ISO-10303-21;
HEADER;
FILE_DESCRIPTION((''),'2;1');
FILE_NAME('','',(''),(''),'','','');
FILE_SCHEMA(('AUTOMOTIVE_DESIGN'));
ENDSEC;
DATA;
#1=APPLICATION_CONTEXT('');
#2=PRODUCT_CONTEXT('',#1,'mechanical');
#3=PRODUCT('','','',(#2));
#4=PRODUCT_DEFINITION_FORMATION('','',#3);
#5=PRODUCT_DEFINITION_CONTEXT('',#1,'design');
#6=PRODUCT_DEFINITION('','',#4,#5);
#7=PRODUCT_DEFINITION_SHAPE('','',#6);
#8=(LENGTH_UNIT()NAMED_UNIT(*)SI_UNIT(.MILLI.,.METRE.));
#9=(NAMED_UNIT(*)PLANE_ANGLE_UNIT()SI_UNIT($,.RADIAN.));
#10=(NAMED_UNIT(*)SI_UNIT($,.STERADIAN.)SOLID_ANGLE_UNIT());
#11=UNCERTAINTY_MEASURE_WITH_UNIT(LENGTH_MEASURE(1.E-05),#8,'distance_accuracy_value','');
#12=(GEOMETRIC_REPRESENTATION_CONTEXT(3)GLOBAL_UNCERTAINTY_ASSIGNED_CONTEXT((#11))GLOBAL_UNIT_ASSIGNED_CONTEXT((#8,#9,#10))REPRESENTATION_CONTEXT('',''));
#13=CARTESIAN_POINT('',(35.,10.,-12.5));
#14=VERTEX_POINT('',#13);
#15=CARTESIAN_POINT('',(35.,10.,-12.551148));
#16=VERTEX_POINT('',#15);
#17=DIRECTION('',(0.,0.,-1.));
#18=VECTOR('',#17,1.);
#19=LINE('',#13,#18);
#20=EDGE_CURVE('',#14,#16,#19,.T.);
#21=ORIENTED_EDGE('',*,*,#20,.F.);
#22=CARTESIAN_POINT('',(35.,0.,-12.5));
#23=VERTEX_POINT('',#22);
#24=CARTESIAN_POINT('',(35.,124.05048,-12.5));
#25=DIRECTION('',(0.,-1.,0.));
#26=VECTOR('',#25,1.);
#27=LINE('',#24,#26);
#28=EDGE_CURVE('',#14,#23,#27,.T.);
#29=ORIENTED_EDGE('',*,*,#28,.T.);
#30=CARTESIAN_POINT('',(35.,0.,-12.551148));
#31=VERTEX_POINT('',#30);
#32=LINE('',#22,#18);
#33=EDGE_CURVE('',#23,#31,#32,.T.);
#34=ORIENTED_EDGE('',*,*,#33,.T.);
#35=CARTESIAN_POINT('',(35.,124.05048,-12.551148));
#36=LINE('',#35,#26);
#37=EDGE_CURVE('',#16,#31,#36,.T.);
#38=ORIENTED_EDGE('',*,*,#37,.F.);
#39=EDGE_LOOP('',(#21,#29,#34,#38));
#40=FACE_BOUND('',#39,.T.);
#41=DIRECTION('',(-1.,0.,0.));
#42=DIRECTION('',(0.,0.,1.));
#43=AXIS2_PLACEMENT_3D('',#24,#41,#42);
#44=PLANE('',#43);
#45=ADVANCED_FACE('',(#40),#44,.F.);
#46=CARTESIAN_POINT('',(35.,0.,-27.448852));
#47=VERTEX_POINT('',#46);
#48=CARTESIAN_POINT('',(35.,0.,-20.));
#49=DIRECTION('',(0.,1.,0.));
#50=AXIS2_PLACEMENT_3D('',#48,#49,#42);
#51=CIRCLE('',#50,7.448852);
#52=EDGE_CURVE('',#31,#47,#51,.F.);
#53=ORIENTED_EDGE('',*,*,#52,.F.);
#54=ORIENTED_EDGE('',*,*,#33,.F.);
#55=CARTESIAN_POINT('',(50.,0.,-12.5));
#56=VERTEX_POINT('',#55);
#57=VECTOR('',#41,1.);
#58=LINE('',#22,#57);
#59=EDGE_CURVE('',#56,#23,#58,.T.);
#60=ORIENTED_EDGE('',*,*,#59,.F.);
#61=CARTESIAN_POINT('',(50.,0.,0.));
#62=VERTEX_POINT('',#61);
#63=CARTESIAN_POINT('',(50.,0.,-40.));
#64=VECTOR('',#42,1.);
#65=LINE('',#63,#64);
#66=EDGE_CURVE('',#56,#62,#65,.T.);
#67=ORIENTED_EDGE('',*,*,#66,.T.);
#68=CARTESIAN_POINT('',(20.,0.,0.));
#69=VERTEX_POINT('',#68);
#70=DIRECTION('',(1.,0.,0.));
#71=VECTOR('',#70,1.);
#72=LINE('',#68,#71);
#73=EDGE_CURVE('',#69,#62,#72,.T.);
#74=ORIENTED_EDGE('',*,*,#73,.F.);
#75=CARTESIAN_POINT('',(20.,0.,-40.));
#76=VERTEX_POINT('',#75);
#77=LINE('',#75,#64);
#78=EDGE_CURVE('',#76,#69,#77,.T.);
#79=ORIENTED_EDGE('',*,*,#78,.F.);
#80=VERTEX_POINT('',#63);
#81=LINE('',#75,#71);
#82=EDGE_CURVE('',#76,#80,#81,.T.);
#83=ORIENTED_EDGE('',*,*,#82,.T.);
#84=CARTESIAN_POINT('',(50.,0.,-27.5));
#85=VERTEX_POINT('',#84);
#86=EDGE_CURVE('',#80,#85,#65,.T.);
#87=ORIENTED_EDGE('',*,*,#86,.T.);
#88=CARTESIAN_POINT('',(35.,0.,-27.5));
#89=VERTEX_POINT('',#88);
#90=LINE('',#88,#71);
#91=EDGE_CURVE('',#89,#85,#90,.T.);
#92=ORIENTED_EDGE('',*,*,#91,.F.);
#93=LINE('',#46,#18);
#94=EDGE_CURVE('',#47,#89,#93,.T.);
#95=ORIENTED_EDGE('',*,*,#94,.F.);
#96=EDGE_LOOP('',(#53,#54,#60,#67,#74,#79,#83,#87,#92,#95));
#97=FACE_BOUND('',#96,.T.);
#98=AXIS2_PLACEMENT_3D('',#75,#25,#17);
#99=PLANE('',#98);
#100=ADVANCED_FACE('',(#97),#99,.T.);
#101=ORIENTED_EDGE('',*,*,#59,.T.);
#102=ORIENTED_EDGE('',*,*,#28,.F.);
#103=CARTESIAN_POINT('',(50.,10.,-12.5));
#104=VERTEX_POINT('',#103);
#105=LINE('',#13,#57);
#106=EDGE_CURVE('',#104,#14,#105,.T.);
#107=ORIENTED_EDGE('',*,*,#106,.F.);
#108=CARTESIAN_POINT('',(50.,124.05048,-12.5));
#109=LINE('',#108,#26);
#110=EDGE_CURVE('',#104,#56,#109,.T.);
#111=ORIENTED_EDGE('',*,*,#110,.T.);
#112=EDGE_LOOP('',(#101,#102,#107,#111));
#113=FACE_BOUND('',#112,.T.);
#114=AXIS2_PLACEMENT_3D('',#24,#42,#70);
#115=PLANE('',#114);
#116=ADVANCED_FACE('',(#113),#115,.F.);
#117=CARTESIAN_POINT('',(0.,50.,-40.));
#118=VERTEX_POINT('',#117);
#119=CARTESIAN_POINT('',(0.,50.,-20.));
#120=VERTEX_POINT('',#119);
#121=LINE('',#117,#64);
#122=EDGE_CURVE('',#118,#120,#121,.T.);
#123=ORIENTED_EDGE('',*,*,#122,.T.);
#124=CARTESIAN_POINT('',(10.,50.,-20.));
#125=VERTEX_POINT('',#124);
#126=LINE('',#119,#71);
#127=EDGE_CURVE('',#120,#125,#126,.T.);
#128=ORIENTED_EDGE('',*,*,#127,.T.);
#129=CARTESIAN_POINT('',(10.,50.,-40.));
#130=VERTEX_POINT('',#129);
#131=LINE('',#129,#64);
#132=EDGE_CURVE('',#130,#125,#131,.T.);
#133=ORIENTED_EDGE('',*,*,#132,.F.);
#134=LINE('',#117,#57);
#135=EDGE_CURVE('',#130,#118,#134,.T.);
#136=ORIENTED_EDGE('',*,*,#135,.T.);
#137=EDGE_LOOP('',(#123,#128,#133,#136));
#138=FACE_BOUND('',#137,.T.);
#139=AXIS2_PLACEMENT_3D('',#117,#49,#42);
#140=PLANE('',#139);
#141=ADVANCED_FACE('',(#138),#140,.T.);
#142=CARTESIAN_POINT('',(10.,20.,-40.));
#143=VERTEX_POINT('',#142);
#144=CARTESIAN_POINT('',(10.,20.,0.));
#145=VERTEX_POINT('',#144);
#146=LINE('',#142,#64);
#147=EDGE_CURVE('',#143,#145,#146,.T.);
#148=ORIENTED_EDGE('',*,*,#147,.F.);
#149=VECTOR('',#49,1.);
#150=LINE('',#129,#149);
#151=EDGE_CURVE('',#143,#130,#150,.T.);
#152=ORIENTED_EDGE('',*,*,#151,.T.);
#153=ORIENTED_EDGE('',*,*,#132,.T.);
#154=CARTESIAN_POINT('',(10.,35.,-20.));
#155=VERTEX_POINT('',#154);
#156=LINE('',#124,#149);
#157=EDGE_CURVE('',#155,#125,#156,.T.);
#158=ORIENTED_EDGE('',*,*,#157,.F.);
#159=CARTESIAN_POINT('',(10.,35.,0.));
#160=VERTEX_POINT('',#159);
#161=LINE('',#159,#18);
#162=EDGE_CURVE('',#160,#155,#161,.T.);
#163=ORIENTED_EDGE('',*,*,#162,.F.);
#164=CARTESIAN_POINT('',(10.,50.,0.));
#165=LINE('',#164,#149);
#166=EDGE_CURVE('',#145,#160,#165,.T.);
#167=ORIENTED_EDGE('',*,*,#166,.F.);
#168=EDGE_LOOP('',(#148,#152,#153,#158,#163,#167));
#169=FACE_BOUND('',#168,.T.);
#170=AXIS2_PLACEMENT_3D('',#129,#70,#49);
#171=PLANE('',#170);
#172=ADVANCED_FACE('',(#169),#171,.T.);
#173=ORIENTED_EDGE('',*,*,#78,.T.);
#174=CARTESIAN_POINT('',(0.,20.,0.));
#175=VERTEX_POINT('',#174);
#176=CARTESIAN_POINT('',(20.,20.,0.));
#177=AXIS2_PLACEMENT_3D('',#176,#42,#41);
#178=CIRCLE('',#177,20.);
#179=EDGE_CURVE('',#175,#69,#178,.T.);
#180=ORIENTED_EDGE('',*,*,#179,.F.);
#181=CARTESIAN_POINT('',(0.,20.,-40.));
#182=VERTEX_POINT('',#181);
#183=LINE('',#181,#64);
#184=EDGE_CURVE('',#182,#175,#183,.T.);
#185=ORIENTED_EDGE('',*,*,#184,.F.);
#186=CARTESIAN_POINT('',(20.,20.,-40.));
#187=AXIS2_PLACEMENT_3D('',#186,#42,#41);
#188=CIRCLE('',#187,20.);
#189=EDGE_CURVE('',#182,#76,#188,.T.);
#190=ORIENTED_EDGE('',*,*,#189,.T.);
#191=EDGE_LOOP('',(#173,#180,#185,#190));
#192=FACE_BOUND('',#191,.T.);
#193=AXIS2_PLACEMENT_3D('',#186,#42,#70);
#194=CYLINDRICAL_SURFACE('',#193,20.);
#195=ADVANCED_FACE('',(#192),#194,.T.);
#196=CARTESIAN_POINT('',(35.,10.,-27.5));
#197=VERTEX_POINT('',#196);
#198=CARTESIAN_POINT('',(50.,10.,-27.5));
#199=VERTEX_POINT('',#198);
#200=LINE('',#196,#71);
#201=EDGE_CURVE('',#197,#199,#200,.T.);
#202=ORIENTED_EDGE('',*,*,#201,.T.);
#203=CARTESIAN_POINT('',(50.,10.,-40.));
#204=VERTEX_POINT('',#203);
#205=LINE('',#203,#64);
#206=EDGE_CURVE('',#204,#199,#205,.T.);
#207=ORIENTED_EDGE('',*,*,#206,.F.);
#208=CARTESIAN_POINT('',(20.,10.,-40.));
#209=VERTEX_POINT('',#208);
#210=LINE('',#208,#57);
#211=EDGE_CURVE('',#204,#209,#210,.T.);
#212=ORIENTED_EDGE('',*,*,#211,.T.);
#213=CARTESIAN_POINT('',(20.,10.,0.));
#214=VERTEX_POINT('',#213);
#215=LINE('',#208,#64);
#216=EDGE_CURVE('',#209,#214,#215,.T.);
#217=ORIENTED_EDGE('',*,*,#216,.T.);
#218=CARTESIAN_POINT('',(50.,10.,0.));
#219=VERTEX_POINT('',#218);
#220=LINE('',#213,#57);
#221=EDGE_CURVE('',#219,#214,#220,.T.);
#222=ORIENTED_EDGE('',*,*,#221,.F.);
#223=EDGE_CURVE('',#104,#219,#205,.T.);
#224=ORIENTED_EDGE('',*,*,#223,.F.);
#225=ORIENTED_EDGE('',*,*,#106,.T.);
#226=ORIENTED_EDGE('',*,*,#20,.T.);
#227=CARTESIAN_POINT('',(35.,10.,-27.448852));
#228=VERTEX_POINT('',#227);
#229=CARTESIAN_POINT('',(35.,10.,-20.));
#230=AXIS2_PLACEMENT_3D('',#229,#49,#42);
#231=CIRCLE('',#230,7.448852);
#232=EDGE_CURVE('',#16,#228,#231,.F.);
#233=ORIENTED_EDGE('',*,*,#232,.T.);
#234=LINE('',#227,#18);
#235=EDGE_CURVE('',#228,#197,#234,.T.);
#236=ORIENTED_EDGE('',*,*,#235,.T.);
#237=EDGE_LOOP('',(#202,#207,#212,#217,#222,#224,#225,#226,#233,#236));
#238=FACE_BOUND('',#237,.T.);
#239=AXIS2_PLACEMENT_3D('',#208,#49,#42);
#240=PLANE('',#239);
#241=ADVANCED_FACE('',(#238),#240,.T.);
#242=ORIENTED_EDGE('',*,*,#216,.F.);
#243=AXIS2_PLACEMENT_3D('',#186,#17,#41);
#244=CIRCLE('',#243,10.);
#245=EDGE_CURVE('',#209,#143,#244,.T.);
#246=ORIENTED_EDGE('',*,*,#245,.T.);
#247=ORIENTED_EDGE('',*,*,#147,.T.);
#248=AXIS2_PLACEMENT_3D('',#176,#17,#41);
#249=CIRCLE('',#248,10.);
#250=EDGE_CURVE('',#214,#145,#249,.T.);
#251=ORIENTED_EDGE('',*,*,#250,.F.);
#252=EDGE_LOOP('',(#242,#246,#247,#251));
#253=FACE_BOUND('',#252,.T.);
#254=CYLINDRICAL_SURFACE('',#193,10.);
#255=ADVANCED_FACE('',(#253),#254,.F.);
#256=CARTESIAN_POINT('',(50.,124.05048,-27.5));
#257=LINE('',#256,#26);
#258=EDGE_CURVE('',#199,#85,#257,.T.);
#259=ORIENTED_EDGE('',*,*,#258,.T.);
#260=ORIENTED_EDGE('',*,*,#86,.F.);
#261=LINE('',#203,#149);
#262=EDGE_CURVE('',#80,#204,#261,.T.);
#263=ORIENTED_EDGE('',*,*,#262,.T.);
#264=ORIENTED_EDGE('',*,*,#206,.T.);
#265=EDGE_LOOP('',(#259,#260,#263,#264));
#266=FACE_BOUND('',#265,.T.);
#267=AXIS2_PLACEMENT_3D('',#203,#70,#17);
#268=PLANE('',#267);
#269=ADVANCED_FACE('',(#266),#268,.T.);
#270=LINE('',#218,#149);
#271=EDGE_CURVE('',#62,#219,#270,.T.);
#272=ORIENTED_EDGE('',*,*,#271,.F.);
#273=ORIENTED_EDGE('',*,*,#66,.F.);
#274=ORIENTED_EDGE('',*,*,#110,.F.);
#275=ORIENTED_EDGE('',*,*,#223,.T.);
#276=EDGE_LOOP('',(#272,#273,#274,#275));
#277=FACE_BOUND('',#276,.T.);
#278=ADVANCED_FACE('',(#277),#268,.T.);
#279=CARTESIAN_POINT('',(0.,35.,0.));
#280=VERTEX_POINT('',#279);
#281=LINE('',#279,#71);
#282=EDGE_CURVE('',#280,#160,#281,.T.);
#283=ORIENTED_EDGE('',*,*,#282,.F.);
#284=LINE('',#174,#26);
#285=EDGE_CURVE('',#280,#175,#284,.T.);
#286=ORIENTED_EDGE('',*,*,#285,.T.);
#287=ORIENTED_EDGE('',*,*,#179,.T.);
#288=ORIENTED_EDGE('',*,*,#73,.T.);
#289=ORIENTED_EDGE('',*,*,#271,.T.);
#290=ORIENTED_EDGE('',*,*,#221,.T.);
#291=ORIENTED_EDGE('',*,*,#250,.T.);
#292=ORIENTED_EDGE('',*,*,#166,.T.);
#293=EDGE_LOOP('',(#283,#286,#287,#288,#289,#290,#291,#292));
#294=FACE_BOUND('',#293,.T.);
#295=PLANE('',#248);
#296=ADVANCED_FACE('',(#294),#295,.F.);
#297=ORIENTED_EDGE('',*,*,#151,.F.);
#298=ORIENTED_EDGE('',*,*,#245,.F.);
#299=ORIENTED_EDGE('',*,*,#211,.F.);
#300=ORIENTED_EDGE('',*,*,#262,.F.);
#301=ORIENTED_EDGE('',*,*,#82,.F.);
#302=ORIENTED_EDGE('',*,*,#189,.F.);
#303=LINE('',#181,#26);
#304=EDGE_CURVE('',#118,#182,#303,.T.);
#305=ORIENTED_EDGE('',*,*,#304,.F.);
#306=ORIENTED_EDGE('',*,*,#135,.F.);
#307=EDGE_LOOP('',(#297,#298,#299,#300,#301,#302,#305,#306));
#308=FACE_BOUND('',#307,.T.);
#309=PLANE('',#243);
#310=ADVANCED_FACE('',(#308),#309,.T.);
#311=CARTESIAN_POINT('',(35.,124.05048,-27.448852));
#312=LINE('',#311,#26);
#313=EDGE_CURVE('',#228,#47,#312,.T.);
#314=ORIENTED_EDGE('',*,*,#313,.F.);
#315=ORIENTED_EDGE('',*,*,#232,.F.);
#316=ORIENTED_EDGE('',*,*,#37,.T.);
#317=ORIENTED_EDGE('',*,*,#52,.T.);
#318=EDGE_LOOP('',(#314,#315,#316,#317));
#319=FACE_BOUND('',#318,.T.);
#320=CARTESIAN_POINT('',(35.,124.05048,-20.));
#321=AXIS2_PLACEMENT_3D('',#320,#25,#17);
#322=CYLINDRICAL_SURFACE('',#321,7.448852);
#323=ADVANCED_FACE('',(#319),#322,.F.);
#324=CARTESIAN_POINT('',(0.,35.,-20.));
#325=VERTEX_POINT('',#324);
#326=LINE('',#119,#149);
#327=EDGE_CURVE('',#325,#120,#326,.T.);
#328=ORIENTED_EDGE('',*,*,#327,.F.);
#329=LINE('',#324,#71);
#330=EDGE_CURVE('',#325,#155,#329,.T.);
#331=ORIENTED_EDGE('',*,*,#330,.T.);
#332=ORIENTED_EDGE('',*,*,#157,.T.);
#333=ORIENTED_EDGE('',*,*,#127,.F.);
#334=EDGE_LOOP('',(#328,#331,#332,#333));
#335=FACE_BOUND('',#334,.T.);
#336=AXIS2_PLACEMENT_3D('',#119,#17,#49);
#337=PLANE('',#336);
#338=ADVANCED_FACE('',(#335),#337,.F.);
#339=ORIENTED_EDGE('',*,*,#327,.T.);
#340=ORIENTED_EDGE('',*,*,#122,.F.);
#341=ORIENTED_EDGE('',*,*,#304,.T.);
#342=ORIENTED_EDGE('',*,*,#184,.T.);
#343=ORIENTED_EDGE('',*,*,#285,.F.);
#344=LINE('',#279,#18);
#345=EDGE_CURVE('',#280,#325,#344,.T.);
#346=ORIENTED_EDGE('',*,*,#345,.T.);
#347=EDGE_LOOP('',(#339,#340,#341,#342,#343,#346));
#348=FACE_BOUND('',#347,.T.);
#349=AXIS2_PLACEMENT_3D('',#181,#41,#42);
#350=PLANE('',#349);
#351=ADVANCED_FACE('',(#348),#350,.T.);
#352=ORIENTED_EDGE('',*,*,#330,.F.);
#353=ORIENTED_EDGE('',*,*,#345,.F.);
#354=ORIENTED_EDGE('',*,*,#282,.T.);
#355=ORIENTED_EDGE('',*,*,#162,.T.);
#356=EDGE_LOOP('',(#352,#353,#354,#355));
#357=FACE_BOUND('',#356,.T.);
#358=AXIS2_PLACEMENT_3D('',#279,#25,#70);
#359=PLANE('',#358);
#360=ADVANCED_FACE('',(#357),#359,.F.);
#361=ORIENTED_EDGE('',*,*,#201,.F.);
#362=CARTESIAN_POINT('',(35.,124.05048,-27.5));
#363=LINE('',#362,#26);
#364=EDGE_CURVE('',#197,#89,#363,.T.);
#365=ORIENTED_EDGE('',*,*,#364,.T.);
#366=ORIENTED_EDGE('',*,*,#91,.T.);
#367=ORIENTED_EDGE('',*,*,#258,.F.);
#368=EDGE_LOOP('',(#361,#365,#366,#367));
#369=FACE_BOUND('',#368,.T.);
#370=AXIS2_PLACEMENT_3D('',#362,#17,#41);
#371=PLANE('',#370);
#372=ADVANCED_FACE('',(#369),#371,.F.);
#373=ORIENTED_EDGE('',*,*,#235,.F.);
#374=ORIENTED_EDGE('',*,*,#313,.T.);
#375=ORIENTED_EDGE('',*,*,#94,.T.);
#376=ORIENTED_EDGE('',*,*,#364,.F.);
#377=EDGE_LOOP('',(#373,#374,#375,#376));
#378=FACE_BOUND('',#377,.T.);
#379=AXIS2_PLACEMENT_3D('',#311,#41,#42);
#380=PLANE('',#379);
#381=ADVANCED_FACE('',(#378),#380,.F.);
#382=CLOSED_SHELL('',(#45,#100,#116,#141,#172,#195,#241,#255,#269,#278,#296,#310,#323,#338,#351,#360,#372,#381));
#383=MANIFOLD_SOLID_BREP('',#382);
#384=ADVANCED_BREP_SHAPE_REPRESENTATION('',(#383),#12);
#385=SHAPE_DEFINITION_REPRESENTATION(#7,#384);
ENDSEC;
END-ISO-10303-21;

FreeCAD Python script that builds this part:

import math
import FreeCAD as App
import Part
import Sketcher
from FreeCAD import Vector

doc = App.newDocument("Part")
body = doc.addObject("PartDesign::Body", "Body")

sketch1 = body.newObject("Sketcher::SketchObject", "Sketch")
sketch1.AttachmentSupport = (doc.getObject("XY_Plane"), [""])
sketch1.MapMode = "FlatFace"
sketch1.addGeometry(Part.LineSegment(Vector(20, 0, 0), Vector(50, 0, 0)), False)
sketch1.addGeometry(Part.LineSegment(Vector(50, 0, 0), Vector(50, 10, 0)), False)
sketch1.addGeometry(Part.LineSegment(Vector(50, 10, 0), Vector(20, 10, 0)), False)
sketch1.addGeometry(Part.ArcOfCircle(Part.Circle(Vector(20, 20, 0), Vector(0, 0, 1), 10), math.radians(180), math.radians(270)), False)
sketch1.addGeometry(Part.LineSegment(Vector(10, 20, 0), Vector(10, 50, 0)), False)
sketch1.addGeometry(Part.LineSegment(Vector(10, 50, 0), Vector(0, 50, 0)), False)
sketch1.addGeometry(Part.LineSegment(Vector(0, 50, 0), Vector(0, 20, 0)), False)
sketch1.addGeometry(Part.ArcOfCircle(Part.Circle(Vector(20, 20, 0), Vector(0, 0, 1), 20), math.radians(180), math.radians(270)), False)
sketch1.addConstraint(Sketcher.Constraint("Coincident", 0, 2, 1, 1))
sketch1.addConstraint(Sketcher.Constraint("Coincident", 1, 2, 2, 1))
sketch1.addConstraint(Sketcher.Constraint("Tangent", 2, 2, 3, 2))
sketch1.addConstraint(Sketcher.Constraint("Tangent", 3, 1, 4, 1))
sketch1.addConstraint(Sketcher.Constraint("Coincident", 4, 2, 5, 1))
sketch1.addConstraint(Sketcher.Constraint("Coincident", 5, 2, 6, 1))
sketch1.addConstraint(Sketcher.Constraint("Tangent", 6, 2, 7, 1))
sketch1.addConstraint(Sketcher.Constraint("Tangent", 7, 2, 0, 1))
sketch1.addConstraint(Sketcher.Constraint("Horizontal", 0))
sketch1.addConstraint(Sketcher.Constraint("Vertical", 1))
sketch1.addConstraint(Sketcher.Constraint("Horizontal", 2))
sketch1.addConstraint(Sketcher.Constraint("Vertical", 4))
sketch1.addConstraint(Sketcher.Constraint("Horizontal", 5))
sketch1.addConstraint(Sketcher.Constraint("Vertical", 6))
sketch1.addConstraint(Sketcher.Constraint("Coincident", 7, 3, 3, 3))
sketch1.addConstraint(Sketcher.Constraint("PointOnObject", 0, 2, -1))
sketch1.addConstraint(Sketcher.Constraint("PointOnObject", 5, 2, -2))
sketch1.addConstraint(Sketcher.Constraint("Equal", 2, 4))
sketch1.addConstraint(Sketcher.Constraint("Radius", 3, 10.0))
sketch1.addConstraint(Sketcher.Constraint("Radius", 7, 20.0))
sketch1.addConstraint(Sketcher.Constraint("DistanceX", 0, 1, 0, 2, 30.0))
pad1 = body.newObject("PartDesign::Pad", "Pad")
pad1.Profile = sketch1
pad1.Length = 40
pad1.Reversed = True

sketch2 = body.newObject("Sketcher::SketchObject", "Sketch001")
sketch2.AttachmentSupport = (doc.getObject("YZ_Plane"), [""])
sketch2.MapMode = "FlatFace"
sketch2.AttachmentOffset = App.Placement(Vector(0, 0, 10), App.Rotation())
sketch2.addGeometry(Part.LineSegment(Vector(50, 0, 0), Vector(35, 0, 0)), False)
sketch2.addGeometry(Part.LineSegment(Vector(35, 0, 0), Vector(35, -20, 0)), False)
sketch2.addGeometry(Part.LineSegment(Vector(35, -20, 0), Vector(50, -20, 0)), False)
sketch2.addGeometry(Part.LineSegment(Vector(50, -20, 0), Vector(50, 0, 0)), False)
sketch2.addConstraint(Sketcher.Constraint("Coincident", 0, 2, 1, 1))
sketch2.addConstraint(Sketcher.Constraint("Coincident", 1, 2, 2, 1))
sketch2.addConstraint(Sketcher.Constraint("Coincident", 2, 2, 3, 1))
sketch2.addConstraint(Sketcher.Constraint("Coincident", 3, 2, 0, 1))
sketch2.addConstraint(Sketcher.Constraint("Horizontal", 0))
sketch2.addConstraint(Sketcher.Constraint("Vertical", 1))
sketch2.addConstraint(Sketcher.Constraint("Horizontal", 2))
sketch2.addConstraint(Sketcher.Constraint("Vertical", 3))
sketch2.addConstraint(Sketcher.Constraint("PointOnObject", 0, 2, -1))
sketch2.addConstraint(Sketcher.Constraint("DistanceX", 0, 2, 0, 1, 15.0))
sketch2.addConstraint(Sketcher.Constraint("DistanceY", 1, 2, 1, 1, 20.0))
sketch2.addConstraint(Sketcher.Constraint("DistanceX", -1, 1, 0, 2, 35.0))
pocket1 = body.newObject("PartDesign::Pocket", "Pocket")
pocket1.Profile = sketch2
pocket1.Length = 10

sketch3 = body.newObject("Sketcher::SketchObject", "Sketch002")
sketch3.AttachmentSupport = (doc.getObject("XZ_Plane"), [""])
sketch3.MapMode = "FlatFace"
sketch3.AttachmentOffset = App.Placement(Vector(0, 0, -10), App.Rotation())
sketch3.addGeometry(Part.LineSegment(Vector(35, -27.5, 0), Vector(35, -27.448852, 0)), False)
sketch3.addGeometry(Part.ArcOfCircle(Part.Circle(Vector(35, -20, 0), Vector(0, 0, 1), 7.448852), math.radians(90), math.radians(270)), False)
sketch3.addGeometry(Part.LineSegment(Vector(35, -12.551148, 0), Vector(35, -12.5, 0)), False)
sketch3.addGeometry(Part.LineSegment(Vector(35, -12.5, 0), Vector(422.381366, -12.5, 0)), False)
sketch3.addGeometry(Part.LineSegment(Vector(422.381366, -12.5, 0), Vector(422.381366, -27.5, 0)), False)
sketch3.addGeometry(Part.LineSegment(Vector(422.381366, -27.5, 0), Vector(35, -27.5, 0)), False)
sketch3.addConstraint(Sketcher.Constraint("Coincident", 0, 2, 1, 2))
sketch3.addConstraint(Sketcher.Constraint("Coincident", 1, 1, 2, 1))
sketch3.addConstraint(Sketcher.Constraint("Coincident", 2, 2, 3, 1))
sketch3.addConstraint(Sketcher.Constraint("Coincident", 3, 2, 4, 1))
sketch3.addConstraint(Sketcher.Constraint("Coincident", 4, 2, 5, 1))
sketch3.addConstraint(Sketcher.Constraint("Coincident", 5, 2, 0, 1))
sketch3.addConstraint(Sketcher.Constraint("Vertical", 0))
sketch3.addConstraint(Sketcher.Constraint("Vertical", 2))
sketch3.addConstraint(Sketcher.Constraint("Horizontal", 3))
sketch3.addConstraint(Sketcher.Constraint("Vertical", 4))
sketch3.addConstraint(Sketcher.Constraint("Horizontal", 5))
sketch3.addConstraint(Sketcher.Constraint("Vertical", 1, 3, 0, 2))
sketch3.addConstraint(Sketcher.Constraint("Vertical", 0, 2, 1, 1))
sketch3.addConstraint(Sketcher.Constraint("Equal", 0, 2))
sketch3.addConstraint(Sketcher.Constraint("DistanceY", 4, 2, 4, 1, 15.0))
sketch3.addConstraint(Sketcher.Constraint("DistanceX", -1, 1, 1, 3, 35.0))
sketch3.addConstraint(Sketcher.Constraint("DistanceY", 1, 3, -1, 1, 20.0))
sketch3.addConstraint(Sketcher.Constraint("Radius", 1, 7.448852))
sketch3.addConstraint(Sketcher.Constraint("DistanceX", 3, 1, 3, 2, 387.381366))
pocket2 = body.newObject("PartDesign::Pocket", "Pocket001")
pocket2.Profile = sketch3
pocket2.Type = "ThroughAll"
pocket2.Midplane = True

doc.recompute()
